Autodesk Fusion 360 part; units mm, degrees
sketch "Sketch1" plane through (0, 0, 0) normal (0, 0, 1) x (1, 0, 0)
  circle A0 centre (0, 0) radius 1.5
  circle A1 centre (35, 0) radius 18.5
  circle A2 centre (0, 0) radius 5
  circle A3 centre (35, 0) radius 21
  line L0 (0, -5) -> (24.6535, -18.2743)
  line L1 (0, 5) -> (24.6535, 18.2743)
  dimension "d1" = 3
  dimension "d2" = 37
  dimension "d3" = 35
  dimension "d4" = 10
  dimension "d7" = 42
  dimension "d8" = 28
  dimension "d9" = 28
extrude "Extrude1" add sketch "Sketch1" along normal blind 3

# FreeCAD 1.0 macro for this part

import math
import FreeCAD as App
import Part
import Sketcher

V = App.Vector

doc = App.newDocument("Part")
body = doc.addObject("PartDesign::Body", "Body")

# Sketch on XY plane
sketch1 = doc.addObject("Sketcher::SketchObject", "Sketch")
body.addObject(sketch1)
sketch1.AttachmentSupport = (doc.XY_Plane, [""])
sketch1.MapMode = "FlatFace"
sketch1.addGeometry([
    Part.ArcOfCircle(Part.Circle(V(0, 0, 0), V(0, 0, 1), 5), math.radians(90), math.radians(270)),  # 0
    Part.LineSegment(V(0, -5, 0), V(24.6535, -18.2743, 0)),  # 1
    Part.ArcOfCircle(Part.Circle(V(35, 0, 0), V(0, 0, 1), 21), math.radians(-119.517569), math.radians(119.517569)),  # 2
    Part.LineSegment(V(24.6535, 18.2743, 0), V(0, 5, 0)),  # 3
    Part.Circle(V(0, 0, 0), V(0, 0, 1), 1.5),  # 4
    Part.Circle(V(35, 0, 0), V(0, 0, 1), 18.5),  # 5
], False)
sketch1.addConstraint([
    Sketcher.Constraint("Coincident", 0, 2, 1, 1),
    Sketcher.Constraint("Coincident", 1, 2, 2, 1),
    Sketcher.Constraint("Coincident", 2, 2, 3, 1),
    Sketcher.Constraint("Coincident", 3, 2, 0, 1),
    Sketcher.Constraint("Coincident", 0, 3, -1, 1),
    Sketcher.Constraint("Coincident", 4, 3, -1, 1),
    Sketcher.Constraint("Coincident", 5, 3, 2, 3),
    Sketcher.Constraint("Symmetric", 1, 2, 2, 2, -1),
    Sketcher.Constraint("PointOnObject", 0, 2, -2),
    Sketcher.Constraint("PointOnObject", 3, 2, -2),
    Sketcher.Constraint("Diameter", 4, 3.0),
    Sketcher.Constraint("Diameter", 5, 37.0),
    Sketcher.Constraint("Radius", 0, 5.0),
    Sketcher.Constraint("Radius", 2, 21.0),
    Sketcher.Constraint("Distance", 1, 28.0),
    Sketcher.Constraint("DistanceX", -1, 1, 2, 3, 35.0),
])
pad1 = doc.addObject("PartDesign::Pad", "Pad")
body.addObject(pad1)
pad1.Profile = sketch1
pad1.Length = 3

doc.recompute()
